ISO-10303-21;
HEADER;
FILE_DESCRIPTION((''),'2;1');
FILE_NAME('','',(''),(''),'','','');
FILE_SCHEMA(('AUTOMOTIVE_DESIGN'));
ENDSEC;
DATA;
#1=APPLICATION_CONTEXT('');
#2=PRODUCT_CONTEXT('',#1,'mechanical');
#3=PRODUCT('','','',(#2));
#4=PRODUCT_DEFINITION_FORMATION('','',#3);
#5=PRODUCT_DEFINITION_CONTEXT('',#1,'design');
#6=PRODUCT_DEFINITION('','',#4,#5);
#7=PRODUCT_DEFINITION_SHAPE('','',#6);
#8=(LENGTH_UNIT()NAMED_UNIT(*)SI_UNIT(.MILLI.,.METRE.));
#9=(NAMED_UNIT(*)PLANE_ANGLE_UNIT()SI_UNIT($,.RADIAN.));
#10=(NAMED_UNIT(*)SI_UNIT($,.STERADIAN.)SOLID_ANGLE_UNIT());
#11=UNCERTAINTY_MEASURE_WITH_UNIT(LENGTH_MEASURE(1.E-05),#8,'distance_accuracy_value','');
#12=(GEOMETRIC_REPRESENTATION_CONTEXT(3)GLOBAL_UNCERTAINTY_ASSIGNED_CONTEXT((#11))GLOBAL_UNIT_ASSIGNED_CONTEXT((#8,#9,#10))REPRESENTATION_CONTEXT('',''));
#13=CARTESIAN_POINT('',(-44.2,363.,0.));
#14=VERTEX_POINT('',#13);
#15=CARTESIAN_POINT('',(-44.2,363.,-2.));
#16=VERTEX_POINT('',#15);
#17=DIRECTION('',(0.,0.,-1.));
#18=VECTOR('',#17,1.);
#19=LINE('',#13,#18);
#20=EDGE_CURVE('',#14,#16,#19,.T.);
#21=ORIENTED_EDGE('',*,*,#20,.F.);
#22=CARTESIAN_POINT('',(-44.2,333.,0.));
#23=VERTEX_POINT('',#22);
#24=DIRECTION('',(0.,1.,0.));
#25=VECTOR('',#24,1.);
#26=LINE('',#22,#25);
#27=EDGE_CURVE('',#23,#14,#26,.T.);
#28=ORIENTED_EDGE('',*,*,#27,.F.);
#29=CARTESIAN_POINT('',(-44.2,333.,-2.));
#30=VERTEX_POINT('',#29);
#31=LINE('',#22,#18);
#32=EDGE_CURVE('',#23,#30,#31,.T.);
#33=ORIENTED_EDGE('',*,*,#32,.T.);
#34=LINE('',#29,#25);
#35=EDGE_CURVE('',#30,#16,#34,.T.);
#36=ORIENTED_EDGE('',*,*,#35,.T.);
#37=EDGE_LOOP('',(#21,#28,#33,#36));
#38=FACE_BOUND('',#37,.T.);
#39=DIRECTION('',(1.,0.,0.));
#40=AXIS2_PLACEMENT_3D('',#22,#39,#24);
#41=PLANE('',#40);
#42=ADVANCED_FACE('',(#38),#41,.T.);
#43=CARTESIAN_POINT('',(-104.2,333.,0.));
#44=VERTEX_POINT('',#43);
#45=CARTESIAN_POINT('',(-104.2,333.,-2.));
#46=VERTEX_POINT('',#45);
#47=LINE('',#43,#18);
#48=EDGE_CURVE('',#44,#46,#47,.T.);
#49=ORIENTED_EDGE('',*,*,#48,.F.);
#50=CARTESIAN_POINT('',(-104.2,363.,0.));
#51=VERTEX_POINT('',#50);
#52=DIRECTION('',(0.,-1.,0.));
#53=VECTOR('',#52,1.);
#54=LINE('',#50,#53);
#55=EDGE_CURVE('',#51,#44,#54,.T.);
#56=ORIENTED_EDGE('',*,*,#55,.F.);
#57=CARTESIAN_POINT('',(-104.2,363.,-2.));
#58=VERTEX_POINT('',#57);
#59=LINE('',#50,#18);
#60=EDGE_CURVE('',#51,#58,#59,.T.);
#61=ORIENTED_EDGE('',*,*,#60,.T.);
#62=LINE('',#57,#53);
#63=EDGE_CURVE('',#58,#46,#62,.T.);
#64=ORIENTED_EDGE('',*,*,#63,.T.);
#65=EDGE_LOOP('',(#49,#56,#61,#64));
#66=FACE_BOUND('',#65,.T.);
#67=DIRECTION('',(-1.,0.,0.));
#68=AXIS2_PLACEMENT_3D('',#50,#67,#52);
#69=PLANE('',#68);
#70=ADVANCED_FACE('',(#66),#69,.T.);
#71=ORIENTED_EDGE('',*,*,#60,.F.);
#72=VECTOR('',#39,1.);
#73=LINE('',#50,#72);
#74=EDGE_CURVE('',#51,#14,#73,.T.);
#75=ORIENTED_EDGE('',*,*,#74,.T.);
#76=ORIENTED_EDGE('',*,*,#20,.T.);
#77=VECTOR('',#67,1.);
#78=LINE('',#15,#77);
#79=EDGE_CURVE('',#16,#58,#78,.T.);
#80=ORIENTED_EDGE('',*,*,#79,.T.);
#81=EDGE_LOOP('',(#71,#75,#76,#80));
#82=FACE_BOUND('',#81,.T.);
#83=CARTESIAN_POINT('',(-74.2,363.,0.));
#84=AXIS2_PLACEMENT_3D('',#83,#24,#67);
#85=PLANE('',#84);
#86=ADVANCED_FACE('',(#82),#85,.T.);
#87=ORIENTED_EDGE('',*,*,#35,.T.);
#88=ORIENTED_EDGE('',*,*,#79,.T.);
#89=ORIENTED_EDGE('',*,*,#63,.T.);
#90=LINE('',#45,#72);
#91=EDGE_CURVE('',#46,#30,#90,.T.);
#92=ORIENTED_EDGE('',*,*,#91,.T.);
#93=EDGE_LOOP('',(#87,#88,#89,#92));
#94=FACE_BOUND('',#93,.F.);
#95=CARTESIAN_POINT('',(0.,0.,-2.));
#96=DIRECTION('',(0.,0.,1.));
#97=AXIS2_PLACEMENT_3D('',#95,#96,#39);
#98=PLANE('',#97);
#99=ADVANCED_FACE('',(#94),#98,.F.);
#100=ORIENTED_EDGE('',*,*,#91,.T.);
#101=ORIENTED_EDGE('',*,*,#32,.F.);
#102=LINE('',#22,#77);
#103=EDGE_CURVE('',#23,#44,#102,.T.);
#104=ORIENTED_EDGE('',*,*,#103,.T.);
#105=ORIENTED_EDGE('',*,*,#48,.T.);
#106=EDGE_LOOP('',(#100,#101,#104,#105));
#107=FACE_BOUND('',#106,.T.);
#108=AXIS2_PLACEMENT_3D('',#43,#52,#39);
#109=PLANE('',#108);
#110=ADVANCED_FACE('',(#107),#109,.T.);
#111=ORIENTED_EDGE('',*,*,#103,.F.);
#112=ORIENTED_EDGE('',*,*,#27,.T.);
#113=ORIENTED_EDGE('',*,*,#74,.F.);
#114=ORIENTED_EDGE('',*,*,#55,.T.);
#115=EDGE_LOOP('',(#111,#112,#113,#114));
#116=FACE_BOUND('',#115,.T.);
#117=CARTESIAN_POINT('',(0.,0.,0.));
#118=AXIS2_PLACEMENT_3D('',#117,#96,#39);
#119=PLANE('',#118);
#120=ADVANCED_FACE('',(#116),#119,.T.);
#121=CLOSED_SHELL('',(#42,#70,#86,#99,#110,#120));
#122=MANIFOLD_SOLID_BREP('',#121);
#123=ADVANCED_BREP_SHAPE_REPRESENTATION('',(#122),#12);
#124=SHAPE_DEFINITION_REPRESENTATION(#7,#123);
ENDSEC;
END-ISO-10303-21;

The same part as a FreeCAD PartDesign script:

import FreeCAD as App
import Part
import Sketcher


def add_polygon(sketch, points):
    """Adds a closed chain of lines whose ends are joined by coincident constraints."""
    first, n = sketch.GeometryCount, len(points)
    for a, b in zip(points, points[1:] + points[:1]):
        sketch.addGeometry(Part.LineSegment(App.Vector(*a, 0), App.Vector(*b, 0)), False)
    for i in range(n):
        sketch.addConstraint(Sketcher.Constraint("Coincident", first + i, 2, first + (i + 1) % n, 1))

doc = App.newDocument("Part")
body = doc.addObject("PartDesign::Body", "Body")

# Sketch on XY plane
sketch1 = doc.addObject("Sketcher::SketchObject", "Sketch")
body.addObject(sketch1)
sketch1.AttachmentSupport = (doc.XY_Plane, [""])
sketch1.MapMode = "FlatFace"
add_polygon(sketch1, [(-104, 363), (-104, 333), (-44, 333), (-44, 363)])  # lines 0-3
sketch1.addConstraint(Sketcher.Constraint("Vertical", 0))
sketch1.addConstraint(Sketcher.Constraint("Horizontal", 1))
sketch1.addConstraint(Sketcher.Constraint("Vertical", 2))
sketch1.addConstraint(Sketcher.Constraint("Horizontal", 3))
sketch1.addConstraint(Sketcher.Constraint("DistanceY", 0, 2, 0, 1, 30.0))
sketch1.addConstraint(Sketcher.Constraint("DistanceX", 1, 1, 1, 2, 60.0))
sketch1.addConstraint(Sketcher.Constraint("DistanceY", -1, 1, 0, 2, 333.0))
sketch1.addConstraint(Sketcher.Constraint("DistanceX", 0, 2, -1, 1, 104.2))
pad1 = doc.addObject("PartDesign::Pad", "Pad")
body.addObject(pad1)
pad1.Profile = sketch1
pad1.Length = 2
pad1.Reversed = True

doc.recompute()
